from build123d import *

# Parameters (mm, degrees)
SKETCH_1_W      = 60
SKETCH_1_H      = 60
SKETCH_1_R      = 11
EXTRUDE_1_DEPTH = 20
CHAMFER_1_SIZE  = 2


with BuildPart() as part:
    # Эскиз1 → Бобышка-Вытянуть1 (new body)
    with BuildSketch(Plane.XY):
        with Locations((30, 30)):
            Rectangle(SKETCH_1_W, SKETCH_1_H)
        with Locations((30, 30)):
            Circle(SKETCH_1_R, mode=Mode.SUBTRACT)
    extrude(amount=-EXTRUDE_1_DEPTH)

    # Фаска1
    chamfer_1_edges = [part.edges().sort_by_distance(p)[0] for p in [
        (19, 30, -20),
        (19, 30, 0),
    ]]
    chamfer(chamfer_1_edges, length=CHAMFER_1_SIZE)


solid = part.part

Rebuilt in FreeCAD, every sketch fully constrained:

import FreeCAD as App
import Part
import Sketcher

V = App.Vector


def edges_at(feature, points):
    """Names of the edges that pass closest to the given points."""
    edges = feature.Shape.Edges
    near = lambda p: min(range(len(edges)), key=lambda i: edges[i].distToShape(Part.Vertex(*p))[0])
    return sorted({f"Edge{near(p) + 1}" for p in points})

doc = App.newDocument("Part")
body = doc.addObject("PartDesign::Body", "Body")

sketch1 = body.newObject("Sketcher::SketchObject", "Sketch")
sketch1.AttachmentSupport = (doc.getObject("XY_Plane"), [""])
sketch1.MapMode = "FlatFace"
sketch1.addGeometry(Part.LineSegment(V(0, 60, 0), V(0, 0, 0)), False)
sketch1.addGeometry(Part.LineSegment(V(0, 0, 0), V(60, 0, 0)), False)
sketch1.addGeometry(Part.LineSegment(V(60, 0, 0), V(60, 60, 0)), False)
sketch1.addGeometry(Part.LineSegment(V(60, 60, 0), V(0, 60, 0)), False)
sketch1.addGeometry(Part.Circle(V(30, 30, 0), V(0, 0, 1), 11), False)
sketch1.addConstraint(Sketcher.Constraint("Coincident", 0, 2, 1, 1))
sketch1.addConstraint(Sketcher.Constraint("Coincident", 1, 2, 2, 1))
sketch1.addConstraint(Sketcher.Constraint("Coincident", 2, 2, 3, 1))
sketch1.addConstraint(Sketcher.Constraint("Coincident", 3, 2, 0, 1))
sketch1.addConstraint(Sketcher.Constraint("Vertical", 0))
sketch1.addConstraint(Sketcher.Constraint("Horizontal", 1))
sketch1.addConstraint(Sketcher.Constraint("Vertical", 2))
sketch1.addConstraint(Sketcher.Constraint("Horizontal", 3))
sketch1.addConstraint(Sketcher.Constraint("Coincident", 0, 2, -1, 1))
sketch1.addConstraint(Sketcher.Constraint("Equal", 3, 0))
sketch1.addConstraint(Sketcher.Constraint("Diameter", 4, 22.0))
sketch1.addConstraint(Sketcher.Constraint("DistanceX", 1, 1, 1, 2, 60.0))
sketch1.addConstraint(Sketcher.Constraint("DistanceX", -1, 1, 4, 3, 30.0))
sketch1.addConstraint(Sketcher.Constraint("DistanceY", -1, 1, 4, 3, 30.0))
pad1 = body.newObject("PartDesign::Pad", "Pad")
pad1.Profile = sketch1
pad1.Length = 20
pad1.Reversed = True
doc.recompute()

chamfer = body.newObject("PartDesign::Chamfer", "Chamfer")
chamfer.Base = (pad1, edges_at(pad1, [(19, 30, -20), (19, 30, 0)]))
chamfer.Size = 2

doc.recompute()
